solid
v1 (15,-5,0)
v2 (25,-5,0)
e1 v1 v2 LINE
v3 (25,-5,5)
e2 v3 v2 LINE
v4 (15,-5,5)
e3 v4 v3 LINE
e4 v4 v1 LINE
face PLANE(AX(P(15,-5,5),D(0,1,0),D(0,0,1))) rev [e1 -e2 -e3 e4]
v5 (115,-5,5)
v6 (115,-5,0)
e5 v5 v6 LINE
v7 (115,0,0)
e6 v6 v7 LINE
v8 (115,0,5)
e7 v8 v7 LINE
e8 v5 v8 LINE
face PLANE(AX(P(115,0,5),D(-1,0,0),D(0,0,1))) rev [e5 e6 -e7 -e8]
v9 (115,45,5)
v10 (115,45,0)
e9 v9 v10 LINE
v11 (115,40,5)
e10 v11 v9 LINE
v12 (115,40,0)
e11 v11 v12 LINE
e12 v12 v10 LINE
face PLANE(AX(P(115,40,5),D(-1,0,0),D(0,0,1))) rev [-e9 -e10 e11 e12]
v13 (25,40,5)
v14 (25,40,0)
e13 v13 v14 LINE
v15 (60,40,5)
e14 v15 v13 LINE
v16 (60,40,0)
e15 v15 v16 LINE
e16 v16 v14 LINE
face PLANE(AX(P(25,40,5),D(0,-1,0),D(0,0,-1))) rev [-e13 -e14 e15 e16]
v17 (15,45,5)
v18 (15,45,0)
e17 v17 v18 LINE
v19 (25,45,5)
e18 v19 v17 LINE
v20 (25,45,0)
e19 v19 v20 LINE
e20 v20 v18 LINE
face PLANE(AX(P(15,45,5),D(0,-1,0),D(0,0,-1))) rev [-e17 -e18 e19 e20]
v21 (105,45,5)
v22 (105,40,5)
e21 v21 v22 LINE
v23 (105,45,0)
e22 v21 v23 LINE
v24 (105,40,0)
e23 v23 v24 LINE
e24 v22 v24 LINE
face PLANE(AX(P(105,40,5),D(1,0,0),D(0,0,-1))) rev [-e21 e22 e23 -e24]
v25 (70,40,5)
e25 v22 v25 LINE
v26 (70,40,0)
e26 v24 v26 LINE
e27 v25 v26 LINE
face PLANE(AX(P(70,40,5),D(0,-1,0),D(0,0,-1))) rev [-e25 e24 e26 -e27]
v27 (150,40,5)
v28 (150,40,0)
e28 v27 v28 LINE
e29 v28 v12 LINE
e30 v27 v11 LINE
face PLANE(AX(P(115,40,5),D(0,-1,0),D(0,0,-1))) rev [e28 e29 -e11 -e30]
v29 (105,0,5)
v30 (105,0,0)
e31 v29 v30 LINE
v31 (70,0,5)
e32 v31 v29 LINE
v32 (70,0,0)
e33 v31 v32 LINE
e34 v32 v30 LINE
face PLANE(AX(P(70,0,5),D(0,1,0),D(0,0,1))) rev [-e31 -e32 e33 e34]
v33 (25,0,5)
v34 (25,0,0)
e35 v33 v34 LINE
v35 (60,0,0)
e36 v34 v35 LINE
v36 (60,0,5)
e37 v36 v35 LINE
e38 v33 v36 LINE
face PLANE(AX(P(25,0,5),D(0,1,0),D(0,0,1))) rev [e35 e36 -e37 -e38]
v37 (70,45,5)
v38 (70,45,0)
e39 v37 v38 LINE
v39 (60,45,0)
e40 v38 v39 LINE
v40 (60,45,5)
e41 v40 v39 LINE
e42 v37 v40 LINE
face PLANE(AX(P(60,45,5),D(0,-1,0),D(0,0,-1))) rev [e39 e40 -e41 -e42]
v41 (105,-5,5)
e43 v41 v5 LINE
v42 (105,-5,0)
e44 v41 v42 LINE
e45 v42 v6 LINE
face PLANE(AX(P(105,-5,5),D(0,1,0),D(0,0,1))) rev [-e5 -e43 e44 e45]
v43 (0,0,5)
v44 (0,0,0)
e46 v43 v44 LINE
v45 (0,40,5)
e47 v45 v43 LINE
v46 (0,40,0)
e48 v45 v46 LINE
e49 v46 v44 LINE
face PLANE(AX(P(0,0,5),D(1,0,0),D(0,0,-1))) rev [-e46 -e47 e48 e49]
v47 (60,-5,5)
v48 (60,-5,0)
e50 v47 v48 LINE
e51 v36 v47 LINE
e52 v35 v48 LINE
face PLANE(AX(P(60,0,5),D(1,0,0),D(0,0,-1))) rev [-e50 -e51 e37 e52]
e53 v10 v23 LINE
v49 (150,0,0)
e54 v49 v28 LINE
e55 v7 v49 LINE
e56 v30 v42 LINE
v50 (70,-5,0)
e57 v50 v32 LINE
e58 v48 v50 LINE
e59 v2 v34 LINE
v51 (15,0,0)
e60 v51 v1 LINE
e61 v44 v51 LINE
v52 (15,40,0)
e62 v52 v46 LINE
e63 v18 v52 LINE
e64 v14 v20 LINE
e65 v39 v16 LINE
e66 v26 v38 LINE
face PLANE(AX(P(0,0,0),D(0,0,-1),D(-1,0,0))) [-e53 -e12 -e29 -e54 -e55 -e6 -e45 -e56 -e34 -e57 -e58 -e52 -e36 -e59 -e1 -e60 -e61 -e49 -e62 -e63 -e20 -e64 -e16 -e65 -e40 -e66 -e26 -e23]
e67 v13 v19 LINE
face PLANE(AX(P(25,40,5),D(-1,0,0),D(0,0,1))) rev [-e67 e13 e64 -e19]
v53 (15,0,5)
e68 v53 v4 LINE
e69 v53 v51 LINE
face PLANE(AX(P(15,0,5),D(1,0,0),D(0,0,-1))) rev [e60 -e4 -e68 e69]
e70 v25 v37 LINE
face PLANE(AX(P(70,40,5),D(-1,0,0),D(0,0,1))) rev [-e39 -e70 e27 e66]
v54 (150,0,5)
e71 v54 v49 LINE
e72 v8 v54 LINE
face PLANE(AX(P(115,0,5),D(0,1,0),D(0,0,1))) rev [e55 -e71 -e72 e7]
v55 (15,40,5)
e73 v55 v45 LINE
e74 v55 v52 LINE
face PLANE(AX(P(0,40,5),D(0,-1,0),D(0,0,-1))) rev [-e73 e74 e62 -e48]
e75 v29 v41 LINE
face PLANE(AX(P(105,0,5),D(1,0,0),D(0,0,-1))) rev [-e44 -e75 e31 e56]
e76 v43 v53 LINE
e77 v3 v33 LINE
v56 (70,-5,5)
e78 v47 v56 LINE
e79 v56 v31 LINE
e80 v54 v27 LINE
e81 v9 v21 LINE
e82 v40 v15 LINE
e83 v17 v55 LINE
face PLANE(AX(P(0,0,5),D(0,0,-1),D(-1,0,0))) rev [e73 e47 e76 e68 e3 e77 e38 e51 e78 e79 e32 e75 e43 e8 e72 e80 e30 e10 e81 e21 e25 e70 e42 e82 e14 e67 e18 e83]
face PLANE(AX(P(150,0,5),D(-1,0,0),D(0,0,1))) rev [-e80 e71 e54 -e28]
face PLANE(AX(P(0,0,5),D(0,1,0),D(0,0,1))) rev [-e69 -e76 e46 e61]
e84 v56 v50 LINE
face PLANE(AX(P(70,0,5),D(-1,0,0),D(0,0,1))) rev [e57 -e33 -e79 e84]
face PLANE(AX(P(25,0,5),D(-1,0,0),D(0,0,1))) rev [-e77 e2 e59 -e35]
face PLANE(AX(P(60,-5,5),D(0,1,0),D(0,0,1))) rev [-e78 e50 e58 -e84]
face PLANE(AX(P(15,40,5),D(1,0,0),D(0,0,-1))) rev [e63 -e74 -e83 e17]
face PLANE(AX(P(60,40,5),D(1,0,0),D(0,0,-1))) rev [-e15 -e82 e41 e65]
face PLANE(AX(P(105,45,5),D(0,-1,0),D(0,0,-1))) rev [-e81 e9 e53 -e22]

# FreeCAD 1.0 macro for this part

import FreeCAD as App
import Part
import Sketcher

V = App.Vector
Q = App.Units.Quantity

doc = App.newDocument("Part")
body = doc.addObject("PartDesign::Body", "Body")

# Sketch on XY plane
sketch1 = body.newObject("Sketcher::SketchObject", "Sketch")
sketch1.AttachmentSupport = (doc.getObject("XY_Plane"), [""])
sketch1.MapMode = "FlatFace"
sketch1.addGeometry(Part.LineSegment(V(0, 0, 0), V(15, 0, 0)), False)
sketch1.addGeometry(Part.LineSegment(V(15, 0, 0), V(15, -5, 0)), False)
sketch1.addGeometry(Part.LineSegment(V(15, -5, 0), V(25, -5, 0)), False)
sketch1.addGeometry(Part.LineSegment(V(25, -5, 0), V(25, 0, 0)), False)
sketch1.addGeometry(Part.LineSegment(V(25, 0, 0), V(60, 0, 0)), False)
sketch1.addGeometry(Part.LineSegment(V(60, 0, 0), V(60, -5, 0)), False)
sketch1.addGeometry(Part.LineSegment(V(60, -5, 0), V(70, -5, 0)), False)
sketch1.addGeometry(Part.LineSegment(V(70, -5, 0), V(70, 0, 0)), False)
sketch1.addGeometry(Part.LineSegment(V(70, 0, 0), V(105, 0, 0)), False)
sketch1.addGeometry(Part.LineSegment(V(105, 0, 0), V(105, -5, 0)), False)
sketch1.addGeometry(Part.LineSegment(V(105, -5, 0), V(115, -5, 0)), False)
sketch1.addGeometry(Part.LineSegment(V(115, -5, 0), V(115, 0, 0)), False)
sketch1.addGeometry(Part.LineSegment(V(115, 0, 0), V(150, 0, 0)), False)
sketch1.addGeometry(Part.LineSegment(V(150, 0, 0), V(150, 40, 0)), False)
sketch1.addGeometry(Part.LineSegment(V(150, 40, 0), V(115, 40, 0)), False)
sketch1.addGeometry(Part.LineSegment(V(115, 40, 0), V(115, 45, 0)), False)
sketch1.addGeometry(Part.LineSegment(V(115, 45, 0), V(105, 45, 0)), False)
sketch1.addGeometry(Part.LineSegment(V(105, 45, 0), V(105, 40, 0)), False)
sketch1.addGeometry(Part.LineSegment(V(105, 40, 0), V(70, 40, 0)), False)
sketch1.addGeometry(Part.LineSegment(V(70, 40, 0), V(70, 45, 0)), False)
sketch1.addGeometry(Part.LineSegment(V(70, 45, 0), V(60, 45, 0)), False)
sketch1.addGeometry(Part.LineSegment(V(60, 45, 0), V(60, 40, 0)), False)
sketch1.addGeometry(Part.LineSegment(V(60, 40, 0), V(25, 40, 0)), False)
sketch1.addGeometry(Part.LineSegment(V(25, 40, 0), V(25, 45, 0)), False)
sketch1.addGeometry(Part.LineSegment(V(25, 45, 0), V(15, 45, 0)), False)
sketch1.addGeometry(Part.LineSegment(V(15, 45, 0), V(15, 40, 0)), False)
sketch1.addGeometry(Part.LineSegment(V(15, 40, 0), V(0, 40, 0)), False)
sketch1.addGeometry(Part.LineSegment(V(0, 40, 0), V(0, 0, 0)), False)
sketch1.addConstraint(Sketcher.Constraint("Coincident", 0, 2, 1, 1))
sketch1.addConstraint(Sketcher.Constraint("Coincident", 1, 2, 2, 1))
sketch1.addConstraint(Sketcher.Constraint("Coincident", 2, 2, 3, 1))
sketch1.addConstraint(Sketcher.Constraint("Coincident", 3, 2, 4, 1))
sketch1.addConstraint(Sketcher.Constraint("Coincident", 4, 2, 5, 1))
sketch1.addConstraint(Sketcher.Constraint("Coincident", 5, 2, 6, 1))
sketch1.addConstraint(Sketcher.Constraint("Coincident", 6, 2, 7, 1))
sketch1.addConstraint(Sketcher.Constraint("Coincident", 7, 2, 8, 1))
sketch1.addConstraint(Sketcher.Constraint("Coincident", 8, 2, 9, 1))
sketch1.addConstraint(Sketcher.Constraint("Coincident", 9, 2, 10, 1))
sketch1.addConstraint(Sketcher.Constraint("Coincident", 10, 2, 11, 1))
sketch1.addConstraint(Sketcher.Constraint("Coincident", 11, 2, 12, 1))
sketch1.addConstraint(Sketcher.Constraint("Coincident", 12, 2, 13, 1))
sketch1.addConstraint(Sketcher.Constraint("Coincident", 13, 2, 14, 1))
sketch1.addConstraint(Sketcher.Constraint("Coincident", 14, 2, 15, 1))
sketch1.addConstraint(Sketcher.Constraint("Coincident", 15, 2, 16, 1))
sketch1.addConstraint(Sketcher.Constraint("Coincident", 16, 2, 17, 1))
sketch1.addConstraint(Sketcher.Constraint("Coincident", 17, 2, 18, 1))
sketch1.addConstraint(Sketcher.Constraint("Coincident", 18, 2, 19, 1))
sketch1.addConstraint(Sketcher.Constraint("Coincident", 19, 2, 20, 1))
sketch1.addConstraint(Sketcher.Constraint("Coincident", 20, 2, 21, 1))
sketch1.addConstraint(Sketcher.Constraint("Coincident", 21, 2, 22, 1))
sketch1.addConstraint(Sketcher.Constraint("Coincident", 22, 2, 23, 1))
sketch1.addConstraint(Sketcher.Constraint("Coincident", 23, 2, 24, 1))
sketch1.addConstraint(Sketcher.Constraint("Coincident", 24, 2, 25, 1))
sketch1.addConstraint(Sketcher.Constraint("Coincident", 25, 2, 26, 1))
sketch1.addConstraint(Sketcher.Constraint("Coincident", 26, 2, 27, 1))
sketch1.addConstraint(Sketcher.Constraint("Coincident", 27, 2, 0, 1))
sketch1.addConstraint(Sketcher.Constraint("Horizontal", 0))
sketch1.addConstraint(Sketcher.Constraint("Vertical", 1))
sketch1.addConstraint(Sketcher.Constraint("Horizontal", 2))
sketch1.addConstraint(Sketcher.Constraint("Vertical", 3))
sketch1.addConstraint(Sketcher.Constraint("Horizontal", 4))
sketch1.addConstraint(Sketcher.Constraint("Vertical", 5))
sketch1.addConstraint(Sketcher.Constraint("Horizontal", 6))
sketch1.addConstraint(Sketcher.Constraint("Vertical", 7))
sketch1.addConstraint(Sketcher.Constraint("Horizontal", 8))
sketch1.addConstraint(Sketcher.Constraint("Vertical", 9))
sketch1.addConstraint(Sketcher.Constraint("Horizontal", 10))
sketch1.addConstraint(Sketcher.Constraint("Vertical", 11))
sketch1.addConstraint(Sketcher.Constraint("Horizontal", 12))
sketch1.addConstraint(Sketcher.Constraint("Vertical", 13))
sketch1.addConstraint(Sketcher.Constraint("Horizontal", 14))
sketch1.addConstraint(Sketcher.Constraint("Vertical", 15))
sketch1.addConstraint(Sketcher.Constraint("Horizontal", 16))
sketch1.addConstraint(Sketcher.Constraint("Vertical", 17))
sketch1.addConstraint(Sketcher.Constraint("Horizontal", 18))
sketch1.addConstraint(Sketcher.Constraint("Vertical", 19))
sketch1.addConstraint(Sketcher.Constraint("Horizontal", 20))
sketch1.addConstraint(Sketcher.Constraint("Vertical", 21))
sketch1.addConstraint(Sketcher.Constraint("Horizontal", 22))
sketch1.addConstraint(Sketcher.Constraint("Vertical", 23))
sketch1.addConstraint(Sketcher.Constraint("Horizontal", 24))
sketch1.addConstraint(Sketcher.Constraint("Vertical", 25))
sketch1.addConstraint(Sketcher.Constraint("Horizontal", 26))
sketch1.addConstraint(Sketcher.Constraint("Vertical", 27))
sketch1.addConstraint(Sketcher.Constraint("Coincident", 27, 2, -1, 1))
sketch1.addConstraint(Sketcher.Constraint("PointOnObject", 3, 2, -1))
sketch1.addConstraint(Sketcher.Constraint("PointOnObject", 7, 2, -1))
sketch1.addConstraint(Sketcher.Constraint("PointOnObject", 11, 2, -1))
sketch1.addConstraint(Sketcher.Constraint("Horizontal", 2, 2, 5, 2))
sketch1.addConstraint(Sketcher.Constraint("Horizontal", 6, 2, 9, 2))
sketch1.addConstraint(Sketcher.Constraint("Horizontal", 14, 2, 17, 2))
sketch1.addConstraint(Sketcher.Constraint("Horizontal", 16, 2, 19, 2))
sketch1.addConstraint(Sketcher.Constraint("Horizontal", 18, 2, 21, 2))
sketch1.addConstraint(Sketcher.Constraint("Horizontal", 20, 2, 23, 2))
sketch1.addConstraint(Sketcher.Constraint("Horizontal", 22, 2, 25, 2))
sketch1.addConstraint(Sketcher.Constraint("Vertical", 11, 2, 14, 2))
sketch1.addConstraint(Sketcher.Constraint("Vertical", 9, 2, 16, 2))
sketch1.addConstraint(Sketcher.Constraint("Vertical", 7, 2, 18, 2))
sketch1.addConstraint(Sketcher.Constraint("Vertical", 5, 2, 20, 2))
sketch1.addConstraint(Sketcher.Constraint("Vertical", 3, 2, 22, 2))
sketch1.addConstraint(Sketcher.Constraint("Vertical", 1, 2, 24, 2))
sketch1.addConstraint(Sketcher.Constraint("Equal", 2, 6))
sketch1.addConstraint(Sketcher.Constraint("Equal", 4, 8))
sketch1.addConstraint(Sketcher.Constraint("Equal", 6, 10))
sketch1.addConstraint(Sketcher.Constraint("Equal", 8, 12))
sketch1.addConstraint(Sketcher.Constraint("Equal", 11, 15))
sketch1.addConstraint(Sketcher.Constraint("DistanceX", 0, 1, 0, 2, Q("15 mm")))
sketch1.addConstraint(Sketcher.Constraint("DistanceX", 2, 1, 2, 2, Q("10 mm")))
sketch1.addConstraint(Sketcher.Constraint("DistanceX", 4, 1, 4, 2, Q("35 mm")))
sketch1.addConstraint(Sketcher.Constraint("DistanceY", 1, 2, 1, 1, Q("5 mm")))
sketch1.addConstraint(Sketcher.Constraint("DistanceY", 13, 1, 13, 2, Q("40 mm")))
pad1 = body.newObject("PartDesign::Pad", "Pad")
pad1.Profile = sketch1
pad1.Length = 5

doc.recompute()
